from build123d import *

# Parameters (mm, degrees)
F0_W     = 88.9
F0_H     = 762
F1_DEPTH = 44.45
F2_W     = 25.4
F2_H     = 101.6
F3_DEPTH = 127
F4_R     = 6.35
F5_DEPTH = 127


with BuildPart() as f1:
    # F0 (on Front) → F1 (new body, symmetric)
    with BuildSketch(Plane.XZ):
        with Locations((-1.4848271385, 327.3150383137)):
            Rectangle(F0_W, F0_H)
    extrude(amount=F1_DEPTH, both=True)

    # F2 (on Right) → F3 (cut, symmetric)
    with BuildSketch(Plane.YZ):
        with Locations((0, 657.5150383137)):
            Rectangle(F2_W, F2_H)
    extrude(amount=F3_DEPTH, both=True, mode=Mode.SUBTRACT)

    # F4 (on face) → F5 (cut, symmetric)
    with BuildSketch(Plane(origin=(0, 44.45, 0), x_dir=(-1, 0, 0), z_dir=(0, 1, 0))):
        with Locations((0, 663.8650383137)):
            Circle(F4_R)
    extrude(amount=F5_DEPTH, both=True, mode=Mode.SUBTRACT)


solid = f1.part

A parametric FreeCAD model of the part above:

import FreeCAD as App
import Part
import Sketcher
Q = App.Units.Quantity


def add_polygon(sketch, points):
    """Adds a closed chain of lines whose ends are joined by coincident constraints."""
    first, n = sketch.GeometryCount, len(points)
    for a, b in zip(points, points[1:] + points[:1]):
        sketch.addGeometry(Part.LineSegment(App.Vector(*a, 0), App.Vector(*b, 0)), False)
    for i in range(n):
        sketch.addConstraint(Sketcher.Constraint("Coincident", first + i, 2, first + (i + 1) % n, 1))

doc = App.newDocument("Part")
params = doc.addObject("Spreadsheet::Sheet", "Params")
for row, (alias, value) in enumerate([
    ("sketch1_height", "30 in"),
    ("sketch1_width", "3.5 in"),
    ("pad1_length", "3.5 in"),
    ("sketch2_width", "1 in"),
    ("sketch2_height", "4 in"),
    ("pocket1_length", "10 in"),
    ("sketch3_diameter", "0.5 in"),
    ("pocket2_length", "10 in"),
], start=1):
    params.set(f"A{row}", alias)
    params.set(f"B{row}", "=" + value)
    params.setAlias(f"B{row}", alias)

body = doc.addObject("PartDesign::Body", "Body")

# Sketch on XZ plane
sketch1 = body.newObject("Sketcher::SketchObject", "Sketch")
sketch1.AttachmentSupport = (doc.getObject("XZ_Plane"), [""])
sketch1.MapMode = "FlatFace"
add_polygon(sketch1, [(-46, 708), (-46, -54), (43, -54), (43, 708)])  # lines 0-3
sketch1.addConstraint([
    Sketcher.Constraint("Vertical", 0),
    Sketcher.Constraint("Horizontal", 1),
    Sketcher.Constraint("Vertical", 2),
    Sketcher.Constraint("Horizontal", 3),
    Sketcher.Constraint("DistanceY", 0, 2, 0, 1, Q("30 in")),
    Sketcher.Constraint("DistanceX", 1, 1, 1, 2, Q("3.5 in")),
    Sketcher.Constraint("DistanceY", 0, 2, -1, 1, Q("53.684962 mm")),
    Sketcher.Constraint("DistanceX", 0, 2, -1, 1, Q("45.934827 mm")),
])
sketch1.setExpression("Constraints[8]", "Params.sketch1_height")
sketch1.setExpression("Constraints[9]", "Params.sketch1_width")
pad1 = body.newObject("PartDesign::Pad", "Pad")
pad1.Profile = sketch1
pad1.setExpression("Length", "Params.pad1_length")
pad1.Midplane = True

# Sketch on YZ plane
sketch2 = body.newObject("Sketcher::SketchObject", "Sketch001")
sketch2.AttachmentSupport = (doc.getObject("YZ_Plane"), [""])
sketch2.MapMode = "FlatFace"
add_polygon(sketch2, [(-13, 708), (-13, 607), (13, 607), (13, 708)])  # lines 0-3
sketch2.addConstraint([
    Sketcher.Constraint("Vertical", 0),
    Sketcher.Constraint("Horizontal", 1),
    Sketcher.Constraint("Vertical", 2),
    Sketcher.Constraint("Horizontal", 3),
    Sketcher.Constraint("DistanceX", 1, 1, 1, 2, Q("1 in")),
    Sketcher.Constraint("DistanceY", 0, 2, 0, 1, Q("4 in")),
    Sketcher.Constraint("DistanceX", 0, 2, -1, 1, Q("0.5 in")),
    Sketcher.Constraint("DistanceY", -1, 1, 0, 2, Q("606.715038 mm")),
])
sketch2.setExpression("Constraints[8]", "Params.sketch2_width")
sketch2.setExpression("Constraints[9]", "Params.sketch2_height")
pocket1 = body.newObject("PartDesign::Pocket", "Pocket")
pocket1.Profile = sketch2
pocket1.setExpression("Length", "Params.pocket1_length")
pocket1.Midplane = True

# Sketch on XZ plane
sketch3 = body.newObject("Sketcher::SketchObject", "Sketch002")
sketch3.AttachmentSupport = (doc.getObject("XZ_Plane"), [""])
sketch3.MapMode = "FlatFace"
sketch3.AttachmentOffset = App.Placement(App.Vector(0, 0, -1.75 * 25.4), App.Rotation())
sketch3.addGeometry(Part.Circle(App.Vector(0, 664, 0), App.Vector(0, 0, 1), 6), False)
sketch3.addConstraint([
    Sketcher.Constraint("PointOnObject", 0, 3, -2),
    Sketcher.Constraint("Diameter", 0, Q("0.5 in")),
    Sketcher.Constraint("DistanceY", -1, 1, 0, 3, Q("663.865038 mm")),
])
sketch3.setExpression("Constraints[1]", "Params.sketch3_diameter")
pocket2 = body.newObject("PartDesign::Pocket", "Pocket001")
pocket2.Profile = sketch3
pocket2.setExpression("Length", "Params.pocket2_length")
pocket2.Midplane = True

doc.recompute()
